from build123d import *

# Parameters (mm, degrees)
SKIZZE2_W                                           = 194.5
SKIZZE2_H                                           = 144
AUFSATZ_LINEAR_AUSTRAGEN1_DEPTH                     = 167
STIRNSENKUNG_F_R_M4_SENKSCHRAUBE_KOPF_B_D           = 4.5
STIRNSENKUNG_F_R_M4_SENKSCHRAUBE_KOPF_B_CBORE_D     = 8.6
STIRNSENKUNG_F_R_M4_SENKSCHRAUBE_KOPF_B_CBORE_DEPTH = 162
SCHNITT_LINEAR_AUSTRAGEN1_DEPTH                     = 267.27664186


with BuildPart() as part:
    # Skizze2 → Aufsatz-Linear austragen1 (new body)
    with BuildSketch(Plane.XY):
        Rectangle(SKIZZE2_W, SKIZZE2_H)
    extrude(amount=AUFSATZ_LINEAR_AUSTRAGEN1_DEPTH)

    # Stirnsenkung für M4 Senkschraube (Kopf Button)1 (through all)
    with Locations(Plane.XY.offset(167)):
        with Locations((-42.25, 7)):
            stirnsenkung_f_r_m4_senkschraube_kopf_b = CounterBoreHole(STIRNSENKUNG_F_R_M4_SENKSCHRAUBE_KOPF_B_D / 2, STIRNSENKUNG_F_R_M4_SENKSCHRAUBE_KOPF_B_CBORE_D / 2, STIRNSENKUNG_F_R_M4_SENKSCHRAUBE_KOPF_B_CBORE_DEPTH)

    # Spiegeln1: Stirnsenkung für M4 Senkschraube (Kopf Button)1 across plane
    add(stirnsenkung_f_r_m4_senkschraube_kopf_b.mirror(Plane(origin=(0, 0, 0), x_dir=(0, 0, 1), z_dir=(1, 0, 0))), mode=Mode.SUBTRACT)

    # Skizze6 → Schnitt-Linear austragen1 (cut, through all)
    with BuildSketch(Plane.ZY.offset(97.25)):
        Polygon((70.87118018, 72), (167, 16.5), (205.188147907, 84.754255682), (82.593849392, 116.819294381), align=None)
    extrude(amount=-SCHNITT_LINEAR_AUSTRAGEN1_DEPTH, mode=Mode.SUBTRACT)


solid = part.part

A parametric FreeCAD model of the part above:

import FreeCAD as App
import Part
import Sketcher
Q = App.Units.Quantity

doc = App.newDocument("Part")
params = doc.addObject("Spreadsheet::Sheet", "Params")
for row, (alias, value) in enumerate([
    ("sketch1_height", "144 mm"),
    ("sketch1_width", "194.5 mm"),
    ("pad1_length", "167 mm"),
    ("sketch2_diameter", "4.5 mm"),
    ("hole_diameter", "4.5 mm"),
    ("hole_cbore_diameter", "8.6 mm"),
    ("hole_cbore_depth", "162 mm"),
    ("sketch3_length", "111 mm"),
], start=1):
    params.set(f"A{row}", alias)
    params.set(f"B{row}", "=" + value)
    params.setAlias(f"B{row}", alias)

body = doc.addObject("PartDesign::Body", "Body")

# Sketch on XY plane
sketch1 = body.newObject("Sketcher::SketchObject", "Sketch")
sketch1.AttachmentSupport = (doc.getObject("XY_Plane"), [""])
sketch1.MapMode = "FlatFace"
sketch1.addGeometry([
    Part.LineSegment(App.Vector(-97, 72, 0), App.Vector(-97, -72, 0)),
    Part.LineSegment(App.Vector(-97, -72, 0), App.Vector(97, -72, 0)),
    Part.LineSegment(App.Vector(97, -72, 0), App.Vector(97, 72, 0)),
    Part.LineSegment(App.Vector(97, 72, 0), App.Vector(-97, 72, 0)),
], False)
sketch1.addConstraint([
    Sketcher.Constraint("Coincident", 0, 2, 1, 1),
    Sketcher.Constraint("Coincident", 1, 2, 2, 1),
    Sketcher.Constraint("Coincident", 2, 2, 3, 1),
    Sketcher.Constraint("Coincident", 3, 2, 0, 1),
    Sketcher.Constraint("Vertical", 0),
    Sketcher.Constraint("Horizontal", 1),
    Sketcher.Constraint("Vertical", 2),
    Sketcher.Constraint("Horizontal", 3),
    Sketcher.Constraint("Symmetric", 0, 2, 2, 2, -1, 1),
    Sketcher.Constraint("DistanceY", 0, 2, 0, 1, Q("144 mm")),
    Sketcher.Constraint("DistanceX", 1, 1, 1, 2, Q("194.5 mm")),
])
sketch1.setExpression("Constraints[9]", "Params.sketch1_height")
sketch1.setExpression("Constraints[10]", "Params.sketch1_width")
pad1 = body.newObject("PartDesign::Pad", "Pad")
pad1.Profile = sketch1
pad1.setExpression("Length", "Params.pad1_length")

# Sketch on XY plane
sketch2 = body.newObject("Sketcher::SketchObject", "Sketch001")
sketch2.AttachmentSupport = (doc.getObject("XY_Plane"), [""])
sketch2.MapMode = "FlatFace"
sketch2.AttachmentOffset = App.Placement(App.Vector(0, 0, 167), App.Rotation())
sketch2.addGeometry(Part.Circle(App.Vector(-42.2, 7, 0), App.Vector(0, 0, 1), 2.2), False)
sketch2.addConstraint([
    Sketcher.Constraint("Diameter", 0, Q("4.5 mm")),
    Sketcher.Constraint("DistanceY", -1, 1, 0, 3, Q("7 mm")),
    Sketcher.Constraint("DistanceX", 0, 3, -1, 1, Q("42.25 mm")),
])
sketch2.setExpression("Constraints[0]", "Params.sketch2_diameter")
doc.recompute()
hole = body.newObject("PartDesign::Hole", "Hole")
hole.Profile = sketch2
hole.ThreadType = "None"
hole.setExpression("Diameter", "Params.hole_diameter")
hole.DepthType = "ThroughAll"
hole.HoleCutType = "Counterbore"
hole.setExpression("HoleCutDiameter", "Params.hole_cbore_diameter")
hole.setExpression("HoleCutDepth", "Params.hole_cbore_depth")
doc.recompute()

mirrored = body.newObject("PartDesign::Mirrored", "Mirrored")
mirrored.Originals = [hole]
mirrored.MirrorPlane = (doc.getObject("YZ_Plane"), [""])
body.Tip = mirrored

# Sketch on YZ plane
sketch3 = body.newObject("Sketcher::SketchObject", "Sketch002")
sketch3.AttachmentSupport = (doc.getObject("YZ_Plane"), [""])
sketch3.MapMode = "FlatFace"
sketch3.AttachmentOffset = App.Placement(App.Vector(0, 0, -97.25), App.Rotation())
sketch3.addGeometry([
    Part.LineSegment(App.Vector(72, 71, 0), App.Vector(16, 167, 0)),
    Part.LineSegment(App.Vector(16, 167, 0), App.Vector(85, 205, 0)),
    Part.LineSegment(App.Vector(85, 205, 0), App.Vector(117, 83, 0)),
    Part.LineSegment(App.Vector(117, 83, 0), App.Vector(72, 71, 0)),
], False)
sketch3.addConstraint([
    Sketcher.Constraint("Coincident", 0, 2, 1, 1),
    Sketcher.Constraint("Coincident", 1, 2, 2, 1),
    Sketcher.Constraint("Coincident", 2, 2, 3, 1),
    Sketcher.Constraint("Coincident", 3, 2, 0, 1),
    Sketcher.Constraint("Perpendicular", 2, 3),
    Sketcher.Constraint("Angle", 0, Q("120 deg")),
    Sketcher.Constraint("Distance", 0, Q("111 mm")),
    Sketcher.Constraint("DistanceY", -1, 1, 0, 2, Q("167 mm")),
    Sketcher.Constraint("DistanceX", -1, 1, 3, 2, Q("72 mm")),
    Sketcher.Constraint("DistanceY", 2, 2, 1, 2, Q("122.594299 mm")),
    Sketcher.Constraint("Distance", 3, Q("46.326991 mm")),
    Sketcher.Constraint("DistanceY", -1, 1, 2, 2, Q("82.593849 mm")),
])
sketch3.setExpression("Constraints[6]", "Params.sketch3_length")
pocket1 = body.newObject("PartDesign::Pocket", "Pocket")
pocket1.Profile = sketch3
pocket1.Type = "ThroughAll"
pocket1.Reversed = True

doc.recompute()
